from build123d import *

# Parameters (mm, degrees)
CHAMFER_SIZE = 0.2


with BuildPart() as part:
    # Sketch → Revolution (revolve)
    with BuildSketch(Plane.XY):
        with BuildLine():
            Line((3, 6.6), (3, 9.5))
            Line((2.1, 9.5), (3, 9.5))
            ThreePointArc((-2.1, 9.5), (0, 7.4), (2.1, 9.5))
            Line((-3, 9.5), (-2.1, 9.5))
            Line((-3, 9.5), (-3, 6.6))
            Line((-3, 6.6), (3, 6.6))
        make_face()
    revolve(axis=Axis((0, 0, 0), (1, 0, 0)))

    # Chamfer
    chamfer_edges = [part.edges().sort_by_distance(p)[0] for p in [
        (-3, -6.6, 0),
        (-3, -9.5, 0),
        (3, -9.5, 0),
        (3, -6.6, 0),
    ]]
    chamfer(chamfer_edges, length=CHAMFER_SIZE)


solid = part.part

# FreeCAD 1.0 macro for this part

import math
import FreeCAD as App
import Part
import Sketcher
Q = App.Units.Quantity


def edges_at(feature, points):
    """Names of the edges that pass closest to the given points."""
    edges = feature.Shape.Edges
    near = lambda p: min(range(len(edges)), key=lambda i: edges[i].distToShape(Part.Vertex(*p))[0])
    return sorted({f"Edge{near(p) + 1}" for p in points})

doc = App.newDocument("Part")
body = doc.addObject("PartDesign::Body", "Body")

# Sketch on XY plane
sketch1 = body.newObject("Sketcher::SketchObject", "Sketch")
sketch1.AttachmentSupport = (doc.getObject("XY_Plane"), [""])
sketch1.MapMode = "FlatFace"
sketch1.addGeometry(Part.LineSegment(App.Vector(3, 6.6, 0), App.Vector(3, 9.5, 0)), False)
sketch1.addGeometry(Part.LineSegment(App.Vector(3, 9.5, 0), App.Vector(2.1, 9.5, 0)), False)
sketch1.addGeometry(Part.ArcOfCircle(Part.Circle(App.Vector(0, 9.5, 0), App.Vector(0, 0, 1), 2.1), math.radians(180), math.radians(360)), False)
sketch1.addGeometry(Part.LineSegment(App.Vector(-2.1, 9.5, 0), App.Vector(-3, 9.5, 0)), False)
sketch1.addGeometry(Part.LineSegment(App.Vector(-3, 9.5, 0), App.Vector(-3, 6.6, 0)), False)
sketch1.addGeometry(Part.LineSegment(App.Vector(-3, 6.6, 0), App.Vector(3, 6.6, 0)), False)
sketch1.addConstraint(Sketcher.Constraint("Coincident", 0, 2, 1, 1))
sketch1.addConstraint(Sketcher.Constraint("Coincident", 1, 2, 2, 2))
sketch1.addConstraint(Sketcher.Constraint("Coincident", 2, 1, 3, 1))
sketch1.addConstraint(Sketcher.Constraint("Coincident", 3, 2, 4, 1))
sketch1.addConstraint(Sketcher.Constraint("Coincident", 4, 2, 5, 1))
sketch1.addConstraint(Sketcher.Constraint("Coincident", 5, 2, 0, 1))
sketch1.addConstraint(Sketcher.Constraint("Vertical", 0))
sketch1.addConstraint(Sketcher.Constraint("Horizontal", 1))
sketch1.addConstraint(Sketcher.Constraint("Horizontal", 3))
sketch1.addConstraint(Sketcher.Constraint("Vertical", 4))
sketch1.addConstraint(Sketcher.Constraint("Horizontal", 5))
sketch1.addConstraint(Sketcher.Constraint("Symmetric", 1, 2, 2, 1, -2))
sketch1.addConstraint(Sketcher.Constraint("Horizontal", 2, 3, 0, 2))
sketch1.addConstraint(Sketcher.Constraint("Equal", 1, 3))
sketch1.addConstraint(Sketcher.Constraint("Radius", 2, Q("2.1 mm")))
sketch1.addConstraint(Sketcher.Constraint("DistanceX", 5, 1, 5, 2, Q("6 mm")))
sketch1.addConstraint(Sketcher.Constraint("DistanceY", 0, 1, 0, 2, Q("2.9 mm")))
sketch1.addConstraint(Sketcher.Constraint("DistanceY", -1, 1, 2, 3, Q("9.5 mm")))
revolution = body.newObject("PartDesign::Revolution", "Revolution")
revolution.Profile = sketch1
revolution.ReferenceAxis = (sketch1, ["H_Axis"])
revolution.Angle = 360
doc.recompute()

chamfer = body.newObject("PartDesign::Chamfer", "Chamfer")
chamfer.Base = (revolution, edges_at(revolution, [
    (-3, -6.6, 0),
    (-3, -9.5, 0),
    (3, -9.5, 0),
    (3, -6.6, 0),
]))
chamfer.Size = 0.2

doc.recompute()
